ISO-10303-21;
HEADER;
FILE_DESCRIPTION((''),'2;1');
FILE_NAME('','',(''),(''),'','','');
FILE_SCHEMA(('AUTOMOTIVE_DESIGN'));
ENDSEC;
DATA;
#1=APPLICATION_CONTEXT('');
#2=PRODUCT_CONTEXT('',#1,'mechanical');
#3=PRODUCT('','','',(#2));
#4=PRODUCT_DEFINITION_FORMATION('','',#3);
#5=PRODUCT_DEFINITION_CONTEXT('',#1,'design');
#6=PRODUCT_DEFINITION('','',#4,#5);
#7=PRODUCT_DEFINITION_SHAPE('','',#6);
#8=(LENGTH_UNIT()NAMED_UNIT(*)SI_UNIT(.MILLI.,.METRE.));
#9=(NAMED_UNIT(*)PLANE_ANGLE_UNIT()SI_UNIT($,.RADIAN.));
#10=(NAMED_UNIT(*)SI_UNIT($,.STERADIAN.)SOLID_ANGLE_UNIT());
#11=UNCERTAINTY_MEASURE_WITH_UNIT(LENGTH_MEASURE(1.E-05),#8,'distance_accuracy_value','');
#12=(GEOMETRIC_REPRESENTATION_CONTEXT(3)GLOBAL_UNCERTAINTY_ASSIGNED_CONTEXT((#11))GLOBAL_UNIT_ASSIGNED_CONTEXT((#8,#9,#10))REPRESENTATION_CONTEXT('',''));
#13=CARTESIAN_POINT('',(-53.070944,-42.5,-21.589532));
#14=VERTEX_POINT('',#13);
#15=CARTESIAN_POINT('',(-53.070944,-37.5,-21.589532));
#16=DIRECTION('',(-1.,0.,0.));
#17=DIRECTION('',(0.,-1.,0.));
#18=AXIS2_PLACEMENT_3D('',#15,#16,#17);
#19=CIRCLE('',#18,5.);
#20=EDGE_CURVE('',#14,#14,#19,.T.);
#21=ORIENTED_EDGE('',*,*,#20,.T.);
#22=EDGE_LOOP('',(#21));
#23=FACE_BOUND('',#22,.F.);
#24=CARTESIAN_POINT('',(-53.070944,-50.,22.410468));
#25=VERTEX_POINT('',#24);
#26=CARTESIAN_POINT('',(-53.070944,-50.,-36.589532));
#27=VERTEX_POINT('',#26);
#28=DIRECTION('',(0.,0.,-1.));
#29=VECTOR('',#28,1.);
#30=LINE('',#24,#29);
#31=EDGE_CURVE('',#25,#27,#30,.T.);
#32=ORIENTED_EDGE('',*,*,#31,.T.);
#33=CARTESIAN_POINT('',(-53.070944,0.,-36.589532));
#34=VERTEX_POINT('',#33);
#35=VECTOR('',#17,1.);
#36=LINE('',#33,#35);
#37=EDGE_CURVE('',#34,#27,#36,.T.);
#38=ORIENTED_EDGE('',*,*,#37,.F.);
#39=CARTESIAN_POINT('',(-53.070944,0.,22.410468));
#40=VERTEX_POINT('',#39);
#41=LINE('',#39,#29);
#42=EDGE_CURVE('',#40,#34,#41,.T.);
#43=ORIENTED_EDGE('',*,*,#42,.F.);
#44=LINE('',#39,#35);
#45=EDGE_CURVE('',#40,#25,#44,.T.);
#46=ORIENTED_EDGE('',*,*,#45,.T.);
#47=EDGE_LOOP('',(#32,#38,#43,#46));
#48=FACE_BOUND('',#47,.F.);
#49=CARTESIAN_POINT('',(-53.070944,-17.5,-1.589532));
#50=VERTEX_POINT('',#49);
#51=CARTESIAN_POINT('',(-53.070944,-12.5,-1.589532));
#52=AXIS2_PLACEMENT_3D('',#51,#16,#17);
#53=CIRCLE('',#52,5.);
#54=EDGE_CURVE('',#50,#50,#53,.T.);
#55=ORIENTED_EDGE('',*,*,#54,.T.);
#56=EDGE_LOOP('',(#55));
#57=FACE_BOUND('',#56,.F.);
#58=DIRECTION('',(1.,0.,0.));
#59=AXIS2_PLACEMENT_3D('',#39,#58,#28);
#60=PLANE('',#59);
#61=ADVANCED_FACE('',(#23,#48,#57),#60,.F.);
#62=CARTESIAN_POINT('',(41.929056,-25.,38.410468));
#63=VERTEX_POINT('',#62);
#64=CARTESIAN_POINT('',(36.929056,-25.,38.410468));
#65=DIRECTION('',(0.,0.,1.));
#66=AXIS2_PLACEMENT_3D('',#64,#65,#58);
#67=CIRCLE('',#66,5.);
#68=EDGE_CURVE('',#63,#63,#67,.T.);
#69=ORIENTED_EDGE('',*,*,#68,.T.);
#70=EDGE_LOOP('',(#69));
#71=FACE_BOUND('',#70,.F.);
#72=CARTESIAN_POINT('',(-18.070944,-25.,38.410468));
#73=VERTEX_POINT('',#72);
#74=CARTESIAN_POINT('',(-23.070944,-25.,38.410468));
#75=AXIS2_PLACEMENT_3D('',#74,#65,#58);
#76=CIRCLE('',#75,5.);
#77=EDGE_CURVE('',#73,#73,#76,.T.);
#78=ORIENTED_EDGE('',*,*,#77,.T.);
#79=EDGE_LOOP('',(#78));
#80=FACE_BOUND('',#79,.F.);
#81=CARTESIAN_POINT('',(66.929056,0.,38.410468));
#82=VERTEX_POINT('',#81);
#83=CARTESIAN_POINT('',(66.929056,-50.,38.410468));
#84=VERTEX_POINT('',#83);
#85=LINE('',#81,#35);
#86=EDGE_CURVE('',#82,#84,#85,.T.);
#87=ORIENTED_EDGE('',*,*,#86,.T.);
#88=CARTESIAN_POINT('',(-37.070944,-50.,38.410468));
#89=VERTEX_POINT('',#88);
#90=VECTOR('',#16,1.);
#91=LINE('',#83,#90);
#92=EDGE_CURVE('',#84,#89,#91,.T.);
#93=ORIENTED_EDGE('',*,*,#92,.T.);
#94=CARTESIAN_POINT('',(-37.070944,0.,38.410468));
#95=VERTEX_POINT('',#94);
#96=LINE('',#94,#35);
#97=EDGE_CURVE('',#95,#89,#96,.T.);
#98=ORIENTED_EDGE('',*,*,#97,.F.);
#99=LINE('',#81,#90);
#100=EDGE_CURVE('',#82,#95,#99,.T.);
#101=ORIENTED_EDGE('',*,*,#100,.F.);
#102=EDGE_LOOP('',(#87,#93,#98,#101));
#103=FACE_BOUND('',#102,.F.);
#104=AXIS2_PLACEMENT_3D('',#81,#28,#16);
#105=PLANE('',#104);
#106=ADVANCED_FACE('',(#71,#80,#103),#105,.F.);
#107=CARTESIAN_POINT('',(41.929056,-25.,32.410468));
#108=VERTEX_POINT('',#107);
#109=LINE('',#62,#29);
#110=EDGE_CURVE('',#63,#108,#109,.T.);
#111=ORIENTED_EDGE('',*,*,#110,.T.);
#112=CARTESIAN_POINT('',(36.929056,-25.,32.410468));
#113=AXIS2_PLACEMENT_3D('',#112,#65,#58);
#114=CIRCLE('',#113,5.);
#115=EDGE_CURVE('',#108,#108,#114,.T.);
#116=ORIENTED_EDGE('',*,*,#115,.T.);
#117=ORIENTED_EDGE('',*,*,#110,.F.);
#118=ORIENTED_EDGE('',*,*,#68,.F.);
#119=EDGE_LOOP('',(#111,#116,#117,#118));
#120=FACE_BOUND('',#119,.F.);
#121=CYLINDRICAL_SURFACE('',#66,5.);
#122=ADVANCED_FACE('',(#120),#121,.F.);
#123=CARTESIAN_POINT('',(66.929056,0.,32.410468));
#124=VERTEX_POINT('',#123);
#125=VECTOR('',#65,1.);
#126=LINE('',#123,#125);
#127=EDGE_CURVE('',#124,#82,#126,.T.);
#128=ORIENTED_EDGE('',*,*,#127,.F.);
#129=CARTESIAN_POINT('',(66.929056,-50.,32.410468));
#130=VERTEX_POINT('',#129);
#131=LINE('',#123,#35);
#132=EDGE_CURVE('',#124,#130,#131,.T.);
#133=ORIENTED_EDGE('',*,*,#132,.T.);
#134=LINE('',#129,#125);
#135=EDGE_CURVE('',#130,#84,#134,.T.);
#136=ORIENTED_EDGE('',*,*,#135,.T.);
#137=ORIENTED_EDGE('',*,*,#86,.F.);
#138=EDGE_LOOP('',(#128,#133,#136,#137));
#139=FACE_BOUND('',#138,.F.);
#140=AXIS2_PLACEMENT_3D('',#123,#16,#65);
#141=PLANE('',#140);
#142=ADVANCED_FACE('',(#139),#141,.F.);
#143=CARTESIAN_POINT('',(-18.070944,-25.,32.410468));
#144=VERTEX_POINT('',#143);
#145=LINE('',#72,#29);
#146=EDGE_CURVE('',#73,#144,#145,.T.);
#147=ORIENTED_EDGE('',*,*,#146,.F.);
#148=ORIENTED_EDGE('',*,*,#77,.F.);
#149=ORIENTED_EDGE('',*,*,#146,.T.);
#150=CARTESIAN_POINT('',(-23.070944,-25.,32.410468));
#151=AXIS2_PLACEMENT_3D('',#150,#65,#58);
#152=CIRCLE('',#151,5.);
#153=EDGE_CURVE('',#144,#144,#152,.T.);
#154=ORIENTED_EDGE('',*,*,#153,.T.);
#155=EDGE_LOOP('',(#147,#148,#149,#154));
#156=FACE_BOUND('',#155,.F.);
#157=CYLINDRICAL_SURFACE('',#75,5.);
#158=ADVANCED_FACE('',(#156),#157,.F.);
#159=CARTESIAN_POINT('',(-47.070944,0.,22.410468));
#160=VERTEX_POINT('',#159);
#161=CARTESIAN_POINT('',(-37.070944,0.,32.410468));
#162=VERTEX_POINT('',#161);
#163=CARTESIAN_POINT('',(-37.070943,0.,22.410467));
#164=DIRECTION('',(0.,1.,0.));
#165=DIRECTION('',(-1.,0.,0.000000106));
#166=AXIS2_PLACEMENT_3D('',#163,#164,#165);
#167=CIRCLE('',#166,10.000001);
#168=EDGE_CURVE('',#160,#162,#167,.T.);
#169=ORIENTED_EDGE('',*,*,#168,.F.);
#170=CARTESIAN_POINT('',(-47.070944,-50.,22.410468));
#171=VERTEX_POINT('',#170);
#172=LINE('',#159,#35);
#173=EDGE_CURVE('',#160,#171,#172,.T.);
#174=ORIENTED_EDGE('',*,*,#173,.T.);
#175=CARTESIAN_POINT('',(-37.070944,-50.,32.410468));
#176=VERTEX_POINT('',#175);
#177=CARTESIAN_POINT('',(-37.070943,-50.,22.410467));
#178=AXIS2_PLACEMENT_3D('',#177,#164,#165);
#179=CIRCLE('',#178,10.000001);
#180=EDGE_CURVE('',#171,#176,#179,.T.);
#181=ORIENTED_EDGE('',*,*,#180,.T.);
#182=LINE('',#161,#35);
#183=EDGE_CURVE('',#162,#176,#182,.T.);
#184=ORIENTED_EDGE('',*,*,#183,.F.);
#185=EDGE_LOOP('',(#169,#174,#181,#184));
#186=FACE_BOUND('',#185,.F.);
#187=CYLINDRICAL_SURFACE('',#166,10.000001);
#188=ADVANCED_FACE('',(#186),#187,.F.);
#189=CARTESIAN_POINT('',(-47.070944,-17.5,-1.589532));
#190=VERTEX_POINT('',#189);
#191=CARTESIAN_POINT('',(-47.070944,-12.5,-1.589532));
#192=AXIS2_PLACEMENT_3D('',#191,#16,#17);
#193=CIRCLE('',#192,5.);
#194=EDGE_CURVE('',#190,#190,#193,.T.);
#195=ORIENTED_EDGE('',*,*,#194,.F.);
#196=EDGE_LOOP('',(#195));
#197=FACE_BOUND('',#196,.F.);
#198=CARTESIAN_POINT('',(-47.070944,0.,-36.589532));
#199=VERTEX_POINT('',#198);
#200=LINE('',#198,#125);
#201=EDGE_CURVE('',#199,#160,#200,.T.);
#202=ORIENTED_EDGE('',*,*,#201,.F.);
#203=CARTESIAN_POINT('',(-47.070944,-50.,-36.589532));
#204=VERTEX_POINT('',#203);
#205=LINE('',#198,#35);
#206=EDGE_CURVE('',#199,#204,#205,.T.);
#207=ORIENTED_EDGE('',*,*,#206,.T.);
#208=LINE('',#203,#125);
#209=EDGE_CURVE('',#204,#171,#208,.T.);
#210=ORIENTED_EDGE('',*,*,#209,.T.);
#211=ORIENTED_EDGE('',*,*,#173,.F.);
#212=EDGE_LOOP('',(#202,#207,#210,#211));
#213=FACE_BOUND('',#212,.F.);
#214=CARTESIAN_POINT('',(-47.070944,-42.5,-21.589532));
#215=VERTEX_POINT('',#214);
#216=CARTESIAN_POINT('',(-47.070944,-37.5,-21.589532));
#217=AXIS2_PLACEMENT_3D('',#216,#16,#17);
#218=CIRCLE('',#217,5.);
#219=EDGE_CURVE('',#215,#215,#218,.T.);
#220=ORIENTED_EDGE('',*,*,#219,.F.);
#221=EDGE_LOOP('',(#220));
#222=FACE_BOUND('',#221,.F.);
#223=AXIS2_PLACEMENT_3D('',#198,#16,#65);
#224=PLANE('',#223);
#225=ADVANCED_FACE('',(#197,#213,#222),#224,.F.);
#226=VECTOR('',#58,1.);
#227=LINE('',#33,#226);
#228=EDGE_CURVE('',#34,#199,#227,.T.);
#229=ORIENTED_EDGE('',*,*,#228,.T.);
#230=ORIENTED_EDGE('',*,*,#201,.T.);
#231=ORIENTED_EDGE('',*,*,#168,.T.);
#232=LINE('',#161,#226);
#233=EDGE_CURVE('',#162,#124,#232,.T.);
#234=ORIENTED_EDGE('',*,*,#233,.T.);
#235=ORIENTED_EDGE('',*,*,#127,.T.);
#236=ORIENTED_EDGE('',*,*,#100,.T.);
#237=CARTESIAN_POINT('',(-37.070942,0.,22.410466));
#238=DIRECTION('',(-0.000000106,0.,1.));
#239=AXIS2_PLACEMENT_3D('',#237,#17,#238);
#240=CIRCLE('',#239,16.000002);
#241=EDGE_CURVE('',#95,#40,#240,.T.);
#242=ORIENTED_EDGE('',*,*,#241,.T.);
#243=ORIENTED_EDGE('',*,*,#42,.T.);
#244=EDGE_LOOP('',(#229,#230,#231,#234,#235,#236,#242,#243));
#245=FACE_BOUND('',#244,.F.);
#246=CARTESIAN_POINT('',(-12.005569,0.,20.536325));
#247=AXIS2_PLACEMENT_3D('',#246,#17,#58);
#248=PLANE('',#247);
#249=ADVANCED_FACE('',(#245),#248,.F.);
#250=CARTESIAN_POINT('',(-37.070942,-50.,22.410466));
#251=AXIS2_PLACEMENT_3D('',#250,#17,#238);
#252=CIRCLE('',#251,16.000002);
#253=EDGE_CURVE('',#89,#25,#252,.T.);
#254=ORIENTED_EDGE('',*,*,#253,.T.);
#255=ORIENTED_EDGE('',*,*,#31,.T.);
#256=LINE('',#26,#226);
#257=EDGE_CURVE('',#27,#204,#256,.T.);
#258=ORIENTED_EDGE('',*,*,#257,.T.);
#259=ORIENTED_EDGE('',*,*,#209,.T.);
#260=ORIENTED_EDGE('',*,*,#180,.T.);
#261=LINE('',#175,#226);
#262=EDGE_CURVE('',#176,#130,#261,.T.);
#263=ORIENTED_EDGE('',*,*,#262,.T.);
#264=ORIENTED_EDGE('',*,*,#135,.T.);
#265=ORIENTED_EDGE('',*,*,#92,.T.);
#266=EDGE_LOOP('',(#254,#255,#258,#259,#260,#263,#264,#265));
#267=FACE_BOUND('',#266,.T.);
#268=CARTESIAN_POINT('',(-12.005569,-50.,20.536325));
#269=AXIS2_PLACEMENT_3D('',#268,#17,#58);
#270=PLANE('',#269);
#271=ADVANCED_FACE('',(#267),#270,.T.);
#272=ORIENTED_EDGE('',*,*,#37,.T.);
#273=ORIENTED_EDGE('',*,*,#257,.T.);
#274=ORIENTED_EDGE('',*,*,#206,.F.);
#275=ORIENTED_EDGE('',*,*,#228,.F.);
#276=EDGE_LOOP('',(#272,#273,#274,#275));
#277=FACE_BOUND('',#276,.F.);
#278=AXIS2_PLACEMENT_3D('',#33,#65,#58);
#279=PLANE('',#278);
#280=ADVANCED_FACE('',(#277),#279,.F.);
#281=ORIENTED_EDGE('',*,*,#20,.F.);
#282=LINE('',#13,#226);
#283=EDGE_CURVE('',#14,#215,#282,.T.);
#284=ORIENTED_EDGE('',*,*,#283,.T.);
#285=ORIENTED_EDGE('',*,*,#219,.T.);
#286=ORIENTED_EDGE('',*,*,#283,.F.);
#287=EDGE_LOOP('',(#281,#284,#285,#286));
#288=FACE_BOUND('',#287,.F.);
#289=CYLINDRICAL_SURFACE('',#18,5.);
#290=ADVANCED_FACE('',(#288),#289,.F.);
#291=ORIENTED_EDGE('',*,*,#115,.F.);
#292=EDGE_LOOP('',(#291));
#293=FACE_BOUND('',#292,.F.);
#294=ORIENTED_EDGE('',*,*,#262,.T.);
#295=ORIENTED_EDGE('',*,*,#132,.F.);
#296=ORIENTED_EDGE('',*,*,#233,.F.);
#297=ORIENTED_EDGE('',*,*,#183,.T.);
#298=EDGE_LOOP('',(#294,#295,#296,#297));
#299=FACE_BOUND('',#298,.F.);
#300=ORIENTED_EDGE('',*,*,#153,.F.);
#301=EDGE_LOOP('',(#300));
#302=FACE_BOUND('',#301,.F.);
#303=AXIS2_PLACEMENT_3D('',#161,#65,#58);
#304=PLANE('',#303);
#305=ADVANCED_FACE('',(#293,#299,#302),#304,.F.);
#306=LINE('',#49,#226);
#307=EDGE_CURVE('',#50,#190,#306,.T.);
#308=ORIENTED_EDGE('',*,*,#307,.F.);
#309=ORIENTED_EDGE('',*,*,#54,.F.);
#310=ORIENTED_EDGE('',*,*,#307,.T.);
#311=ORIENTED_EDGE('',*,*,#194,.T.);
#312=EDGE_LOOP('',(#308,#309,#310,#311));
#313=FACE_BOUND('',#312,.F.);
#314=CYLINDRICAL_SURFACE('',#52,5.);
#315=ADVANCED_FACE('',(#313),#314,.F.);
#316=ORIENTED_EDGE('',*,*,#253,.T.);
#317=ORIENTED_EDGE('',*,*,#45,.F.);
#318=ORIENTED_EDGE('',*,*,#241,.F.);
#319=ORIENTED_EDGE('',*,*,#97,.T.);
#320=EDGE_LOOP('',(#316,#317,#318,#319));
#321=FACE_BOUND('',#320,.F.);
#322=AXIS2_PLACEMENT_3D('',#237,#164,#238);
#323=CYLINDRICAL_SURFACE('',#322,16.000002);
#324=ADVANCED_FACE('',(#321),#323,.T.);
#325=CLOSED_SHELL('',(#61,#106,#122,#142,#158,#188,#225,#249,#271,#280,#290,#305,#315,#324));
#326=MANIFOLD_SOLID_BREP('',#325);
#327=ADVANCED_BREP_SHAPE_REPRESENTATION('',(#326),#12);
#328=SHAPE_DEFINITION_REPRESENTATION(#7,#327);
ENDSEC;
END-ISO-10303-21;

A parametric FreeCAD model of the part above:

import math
import FreeCAD as App
import Part
import Sketcher
Q = App.Units.Quantity

doc = App.newDocument("Part")
body = doc.addObject("PartDesign::Body", "Body")

# Sketch on XZ plane
sketch1 = body.newObject("Sketcher::SketchObject", "Sketch")
sketch1.AttachmentSupport = (doc.getObject("XZ_Plane"), [""])
sketch1.MapMode = "FlatFace"
sketch1.addGeometry([
    Part.LineSegment(App.Vector(-53, 22, 0), App.Vector(-53, -37, 0)),  # 0
    Part.LineSegment(App.Vector(-53, -37, 0), App.Vector(-47, -37, 0)),  # 1
    Part.LineSegment(App.Vector(-47, -37, 0), App.Vector(-47, 22, 0)),  # 2
    Part.ArcOfCircle(Part.Circle(App.Vector(-37, 22, 0), App.Vector(0, 0, 1), 10), math.radians(90), math.radians(180)),  # 3
    Part.LineSegment(App.Vector(-37, 32, 0), App.Vector(67, 32, 0)),  # 4
    Part.LineSegment(App.Vector(67, 32, 0), App.Vector(67, 38, 0)),  # 5
    Part.LineSegment(App.Vector(67, 38, 0), App.Vector(-37, 38, 0)),  # 6
    Part.ArcOfCircle(Part.Circle(App.Vector(-37, 22, 0), App.Vector(0, 0, 1), 16), math.radians(90), math.radians(180)),  # 7
], False)
sketch1.addConstraint([
    Sketcher.Constraint("Coincident", 0, 2, 1, 1),
    Sketcher.Constraint("Coincident", 1, 2, 2, 1),
    Sketcher.Constraint("Tangent", 2, 2, 3, 2),
    Sketcher.Constraint("Tangent", 3, 1, 4, 1),
    Sketcher.Constraint("Coincident", 4, 2, 5, 1),
    Sketcher.Constraint("Coincident", 5, 2, 6, 1),
    Sketcher.Constraint("Tangent", 6, 2, 7, 1),
    Sketcher.Constraint("Tangent", 7, 2, 0, 1),
    Sketcher.Constraint("Vertical", 0),
    Sketcher.Constraint("Horizontal", 1),
    Sketcher.Constraint("Vertical", 2),
    Sketcher.Constraint("Horizontal", 4),
    Sketcher.Constraint("Vertical", 5),
    Sketcher.Constraint("Horizontal", 6),
    Sketcher.Constraint("Coincident", 7, 3, 3, 3),
    Sketcher.Constraint("Radius", 3, Q("10.000001 mm")),
    Sketcher.Constraint("Radius", 7, Q("16.000002 mm")),
    Sketcher.Constraint("DistanceX", 4, 1, 4, 2, Q("104 mm")),
    Sketcher.Constraint("DistanceY", 0, 2, 0, 1, Q("59 mm")),
    Sketcher.Constraint("DistanceY", 0, 2, -1, 1, Q("36.589532 mm")),
    Sketcher.Constraint("DistanceX", 3, 3, -1, 1, Q("37.070943 mm")),
])
pad1 = body.newObject("PartDesign::Pad", "Pad")
pad1.Profile = sketch1
pad1.Length = 50

# Sketch on XY plane
sketch2 = body.newObject("Sketcher::SketchObject", "Sketch001")
sketch2.AttachmentSupport = (doc.getObject("XY_Plane"), [""])
sketch2.MapMode = "FlatFace"
sketch2.AttachmentOffset = App.Placement(App.Vector(0, 0, 38.410468), App.Rotation())
sketch2.addGeometry([
    Part.Circle(App.Vector(-23, -25, 0), App.Vector(0, 0, 1), 5),
    Part.Circle(App.Vector(37, -25, 0), App.Vector(0, 0, 1), 5),
], False)
sketch2.addConstraint([
    Sketcher.Constraint("Equal", 0, 1),
    Sketcher.Constraint("Horizontal", 0, 3, 1, 3),
    Sketcher.Constraint("Diameter", 0, Q("10 mm")),
    Sketcher.Constraint("DistanceY", 0, 3, -1, 1, Q("25 mm")),
    Sketcher.Constraint("DistanceX", 0, 3, 1, 3, Q("60 mm")),
    Sketcher.Constraint("DistanceX", 0, 3, -1, 1, Q("23.070944 mm")),
])
pocket1 = body.newObject("PartDesign::Pocket", "Pocket")
pocket1.Profile = sketch2
pocket1.Length = 25

# Sketch on YZ plane
sketch3 = body.newObject("Sketcher::SketchObject", "Sketch002")
sketch3.AttachmentSupport = (doc.getObject("YZ_Plane"), [""])
sketch3.MapMode = "FlatFace"
sketch3.AttachmentOffset = App.Placement(App.Vector(0, 0, -53.070944), App.Rotation())
sketch3.addGeometry([
    Part.Circle(App.Vector(-12, -2, 0), App.Vector(0, 0, 1), 5),
    Part.Circle(App.Vector(-38, -22, 0), App.Vector(0, 0, 1), 5),
], False)
sketch3.addConstraint([
    Sketcher.Constraint("Equal", 0, 1),
    Sketcher.Constraint("Diameter", 0, Q("10 mm")),
    Sketcher.Constraint("DistanceX", 1, 3, 0, 3, Q("25 mm")),
    Sketcher.Constraint("DistanceY", 1, 3, 0, 3, Q("20 mm")),
    Sketcher.Constraint("DistanceX", 0, 3, -1, 1, Q("12.5 mm")),
    Sketcher.Constraint("DistanceY", 0, 3, -1, 1, Q("1.589532 mm")),
])
pocket2 = body.newObject("PartDesign::Pocket", "Pocket001")
pocket2.Profile = sketch3
pocket2.Length = 25
pocket2.Reversed = True

doc.recompute()
